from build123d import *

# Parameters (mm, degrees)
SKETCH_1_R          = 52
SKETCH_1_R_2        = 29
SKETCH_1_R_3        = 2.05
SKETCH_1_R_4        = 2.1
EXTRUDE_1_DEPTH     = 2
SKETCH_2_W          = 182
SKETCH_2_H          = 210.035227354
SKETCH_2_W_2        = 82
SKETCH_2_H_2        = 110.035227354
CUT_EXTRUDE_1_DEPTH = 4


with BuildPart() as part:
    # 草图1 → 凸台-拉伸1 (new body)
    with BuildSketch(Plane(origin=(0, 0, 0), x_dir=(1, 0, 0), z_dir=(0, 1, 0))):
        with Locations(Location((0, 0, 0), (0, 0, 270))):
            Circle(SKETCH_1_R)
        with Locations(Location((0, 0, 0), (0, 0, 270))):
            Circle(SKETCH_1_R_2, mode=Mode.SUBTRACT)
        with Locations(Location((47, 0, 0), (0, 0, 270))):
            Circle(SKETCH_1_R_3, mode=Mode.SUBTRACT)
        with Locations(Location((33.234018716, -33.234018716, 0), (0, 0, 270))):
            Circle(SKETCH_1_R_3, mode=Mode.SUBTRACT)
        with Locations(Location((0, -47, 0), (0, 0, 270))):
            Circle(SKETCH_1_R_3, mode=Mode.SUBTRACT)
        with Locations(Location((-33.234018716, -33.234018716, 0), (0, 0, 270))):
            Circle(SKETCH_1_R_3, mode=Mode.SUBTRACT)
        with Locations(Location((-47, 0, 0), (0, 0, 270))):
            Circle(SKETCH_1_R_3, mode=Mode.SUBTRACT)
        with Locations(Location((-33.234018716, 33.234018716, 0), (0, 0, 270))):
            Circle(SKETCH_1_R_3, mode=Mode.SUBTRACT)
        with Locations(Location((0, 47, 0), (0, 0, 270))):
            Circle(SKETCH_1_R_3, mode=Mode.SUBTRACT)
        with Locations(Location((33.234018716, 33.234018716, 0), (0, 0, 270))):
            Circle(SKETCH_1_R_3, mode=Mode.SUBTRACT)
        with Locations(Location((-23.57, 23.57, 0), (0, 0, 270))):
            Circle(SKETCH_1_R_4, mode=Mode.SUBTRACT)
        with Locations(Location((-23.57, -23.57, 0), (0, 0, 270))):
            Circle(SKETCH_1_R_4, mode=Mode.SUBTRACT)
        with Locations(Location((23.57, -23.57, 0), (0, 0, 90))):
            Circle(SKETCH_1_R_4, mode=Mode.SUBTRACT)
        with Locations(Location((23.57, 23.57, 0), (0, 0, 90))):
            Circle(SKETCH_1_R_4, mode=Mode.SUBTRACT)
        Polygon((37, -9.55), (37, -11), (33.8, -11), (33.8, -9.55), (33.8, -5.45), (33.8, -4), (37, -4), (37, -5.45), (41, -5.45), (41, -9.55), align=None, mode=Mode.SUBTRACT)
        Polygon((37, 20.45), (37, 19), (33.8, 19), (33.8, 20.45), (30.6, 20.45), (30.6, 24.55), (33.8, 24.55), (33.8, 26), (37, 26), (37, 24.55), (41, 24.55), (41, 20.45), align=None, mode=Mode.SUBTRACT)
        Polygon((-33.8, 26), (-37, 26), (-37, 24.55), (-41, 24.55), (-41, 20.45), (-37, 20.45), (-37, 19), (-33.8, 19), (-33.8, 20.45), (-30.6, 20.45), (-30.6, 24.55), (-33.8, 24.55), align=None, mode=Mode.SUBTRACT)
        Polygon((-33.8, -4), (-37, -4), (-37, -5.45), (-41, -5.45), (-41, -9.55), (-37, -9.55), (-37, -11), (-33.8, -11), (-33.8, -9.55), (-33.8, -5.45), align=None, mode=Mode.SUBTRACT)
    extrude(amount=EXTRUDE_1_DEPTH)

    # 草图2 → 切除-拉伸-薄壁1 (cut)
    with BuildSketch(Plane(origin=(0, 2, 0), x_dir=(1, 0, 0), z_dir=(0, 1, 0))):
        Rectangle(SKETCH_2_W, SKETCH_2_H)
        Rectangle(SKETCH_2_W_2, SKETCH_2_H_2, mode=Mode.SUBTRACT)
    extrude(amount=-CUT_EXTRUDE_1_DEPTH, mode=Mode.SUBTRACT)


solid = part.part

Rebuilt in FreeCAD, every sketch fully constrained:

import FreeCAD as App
import Part
import Sketcher

V = App.Vector
Q = App.Units.Quantity

doc = App.newDocument("Part")
body = doc.addObject("PartDesign::Body", "Body")

sketch1 = body.newObject("Sketcher::SketchObject", "Sketch")
sketch1.AttachmentSupport = (doc.getObject("XZ_Plane"), [""])
sketch1.MapMode = "FlatFace"
sketch1.addGeometry([
    Part.Circle(V(0, 0, 0), V(0, 0, 1), 52),
    Part.Circle(V(-33.2, -33.2, 0), V(0, 0, 1), 2),
    Part.LineSegment(V(-37, -26, 0), V(-33.8, -26, 0)),
    Part.LineSegment(V(-33.8, -26, 0), V(-33.8, -24.6, 0)),
    Part.LineSegment(V(-33.8, -24.6, 0), V(-30.6, -24.6, 0)),
    Part.LineSegment(V(-30.6, -24.6, 0), V(-30.6, -20.4, 0)),
    Part.LineSegment(V(-30.6, -20.4, 0), V(-33.8, -20.4, 0)),
    Part.LineSegment(V(-33.8, -20.4, 0), V(-33.8, -19, 0)),
    Part.LineSegment(V(-33.8, -19, 0), V(-37, -19, 0)),
    Part.LineSegment(V(-37, -19, 0), V(-37, -20.4, 0)),
    Part.LineSegment(V(-37, -20.4, 0), V(-41, -20.4, 0)),
    Part.LineSegment(V(-41, -20.4, 0), V(-41, -24.6, 0)),
    Part.LineSegment(V(-41, -24.6, 0), V(-37, -24.6, 0)),
    Part.LineSegment(V(-37, -24.6, 0), V(-37, -26, 0)),
    Part.Circle(V(0, -47, 0), V(0, 0, 1), 2),
    Part.Circle(V(-23.6, -23.6, 0), V(0, 0, 1), 2.1),
    Part.Circle(V(-47, 0, 0), V(0, 0, 1), 2),
    Part.LineSegment(V(-37, 4, 0), V(-33.8, 4, 0)),
    Part.LineSegment(V(-33.8, 4, 0), V(-33.8, 11, 0)),
    Part.LineSegment(V(-33.8, 11, 0), V(-37, 11, 0)),
    Part.LineSegment(V(-37, 11, 0), V(-37, 9.6, 0)),
    Part.LineSegment(V(-37, 9.6, 0), V(-41, 9.6, 0)),
    Part.LineSegment(V(-41, 9.6, 0), V(-41, 5.5, 0)),
    Part.LineSegment(V(-41, 5.5, 0), V(-37, 5.5, 0)),
    Part.LineSegment(V(-37, 5.5, 0), V(-37, 4, 0)),
    Part.Circle(V(-33.2, 33.2, 0), V(0, 0, 1), 2),
    Part.Circle(V(-23.6, 23.6, 0), V(0, 0, 1), 2.1),
    Part.Circle(V(23.6, -23.6, 0), V(0, 0, 1), 2.1),
    Part.Circle(V(33.2, -33.2, 0), V(0, 0, 1), 2),
    Part.LineSegment(V(41, -20.4, 0), V(37, -20.4, 0)),
    Part.LineSegment(V(37, -20.4, 0), V(37, -19, 0)),
    Part.LineSegment(V(37, -19, 0), V(33.8, -19, 0)),
    Part.LineSegment(V(33.8, -19, 0), V(33.8, -20.4, 0)),
    Part.LineSegment(V(33.8, -20.4, 0), V(30.6, -20.4, 0)),
    Part.LineSegment(V(30.6, -20.4, 0), V(30.6, -24.6, 0)),
    Part.LineSegment(V(30.6, -24.6, 0), V(33.8, -24.6, 0)),
    Part.LineSegment(V(33.8, -24.6, 0), V(33.8, -26, 0)),
    Part.LineSegment(V(33.8, -26, 0), V(37, -26, 0)),
    Part.LineSegment(V(37, -26, 0), V(37, -24.6, 0)),
    Part.LineSegment(V(37, -24.6, 0), V(41, -24.6, 0)),
    Part.LineSegment(V(41, -24.6, 0), V(41, -20.4, 0)),
    Part.Circle(V(47, 0, 0), V(0, 0, 1), 2),
    Part.Circle(V(0, 0, 0), V(0, 0, 1), 29),
    Part.Circle(V(23.6, 23.6, 0), V(0, 0, 1), 2.1),
    Part.Circle(V(0, 47, 0), V(0, 0, 1), 2),
    Part.LineSegment(V(41, 9.6, 0), V(37, 9.6, 0)),
    Part.LineSegment(V(37, 9.6, 0), V(37, 11, 0)),
    Part.LineSegment(V(37, 11, 0), V(33.8, 11, 0)),
    Part.LineSegment(V(33.8, 11, 0), V(33.8, 4, 0)),
    Part.LineSegment(V(33.8, 4, 0), V(37, 4, 0)),
    Part.LineSegment(V(37, 4, 0), V(37, 5.5, 0)),
    Part.LineSegment(V(37, 5.5, 0), V(41, 5.5, 0)),
    Part.LineSegment(V(41, 5.5, 0), V(41, 9.6, 0)),
    Part.Circle(V(33.2, 33.2, 0), V(0, 0, 1), 2),
], False)
sketch1.addConstraint([
    Sketcher.Constraint("Coincident", 2, 2, 3, 1),
    Sketcher.Constraint("Coincident", 3, 2, 4, 1),
    Sketcher.Constraint("Coincident", 4, 2, 5, 1),
    Sketcher.Constraint("Coincident", 5, 2, 6, 1),
    Sketcher.Constraint("Coincident", 6, 2, 7, 1),
    Sketcher.Constraint("Coincident", 7, 2, 8, 1),
    Sketcher.Constraint("Coincident", 8, 2, 9, 1),
    Sketcher.Constraint("Coincident", 9, 2, 10, 1),
    Sketcher.Constraint("Coincident", 10, 2, 11, 1),
    Sketcher.Constraint("Coincident", 11, 2, 12, 1),
    Sketcher.Constraint("Coincident", 12, 2, 13, 1),
    Sketcher.Constraint("Coincident", 13, 2, 2, 1),
    Sketcher.Constraint("Coincident", 17, 2, 18, 1),
    Sketcher.Constraint("Coincident", 18, 2, 19, 1),
    Sketcher.Constraint("Coincident", 19, 2, 20, 1),
    Sketcher.Constraint("Coincident", 20, 2, 21, 1),
    Sketcher.Constraint("Coincident", 21, 2, 22, 1),
    Sketcher.Constraint("Coincident", 22, 2, 23, 1),
    Sketcher.Constraint("Coincident", 23, 2, 24, 1),
    Sketcher.Constraint("Coincident", 24, 2, 17, 1),
    Sketcher.Constraint("Coincident", 29, 2, 30, 1),
    Sketcher.Constraint("Coincident", 30, 2, 31, 1),
    Sketcher.Constraint("Coincident", 31, 2, 32, 1),
    Sketcher.Constraint("Coincident", 32, 2, 33, 1),
    Sketcher.Constraint("Coincident", 33, 2, 34, 1),
    Sketcher.Constraint("Coincident", 34, 2, 35, 1),
    Sketcher.Constraint("Coincident", 35, 2, 36, 1),
    Sketcher.Constraint("Coincident", 36, 2, 37, 1),
    Sketcher.Constraint("Coincident", 37, 2, 38, 1),
    Sketcher.Constraint("Coincident", 38, 2, 39, 1),
    Sketcher.Constraint("Coincident", 39, 2, 40, 1),
    Sketcher.Constraint("Coincident", 40, 2, 29, 1),
    Sketcher.Constraint("Coincident", 45, 2, 46, 1),
    Sketcher.Constraint("Coincident", 46, 2, 47, 1),
    Sketcher.Constraint("Coincident", 47, 2, 48, 1),
    Sketcher.Constraint("Coincident", 48, 2, 49, 1),
    Sketcher.Constraint("Coincident", 49, 2, 50, 1),
    Sketcher.Constraint("Coincident", 50, 2, 51, 1),
    Sketcher.Constraint("Coincident", 51, 2, 52, 1),
    Sketcher.Constraint("Coincident", 52, 2, 45, 1),
    Sketcher.Constraint("Horizontal", 2),
    Sketcher.Constraint("Vertical", 3),
    Sketcher.Constraint("Horizontal", 4),
    Sketcher.Constraint("Vertical", 5),
    Sketcher.Constraint("Horizontal", 6),
    Sketcher.Constraint("Vertical", 7),
    Sketcher.Constraint("Horizontal", 8),
    Sketcher.Constraint("Vertical", 9),
    Sketcher.Constraint("Horizontal", 10),
    Sketcher.Constraint("Vertical", 11),
    Sketcher.Constraint("Horizontal", 12),
    Sketcher.Constraint("Vertical", 13),
    Sketcher.Constraint("Horizontal", 17),
    Sketcher.Constraint("Vertical", 18),
    Sketcher.Constraint("Horizontal", 19),
    Sketcher.Constraint("Vertical", 20),
    Sketcher.Constraint("Horizontal", 21),
    Sketcher.Constraint("Vertical", 22),
    Sketcher.Constraint("Horizontal", 23),
    Sketcher.Constraint("Vertical", 24),
    Sketcher.Constraint("Horizontal", 29),
    Sketcher.Constraint("Vertical", 30),
    Sketcher.Constraint("Horizontal", 31),
    Sketcher.Constraint("Vertical", 32),
    Sketcher.Constraint("Horizontal", 33),
    Sketcher.Constraint("Vertical", 34),
    Sketcher.Constraint("Horizontal", 35),
    Sketcher.Constraint("Vertical", 36),
    Sketcher.Constraint("Horizontal", 37),
    Sketcher.Constraint("Vertical", 38),
    Sketcher.Constraint("Horizontal", 39),
    Sketcher.Constraint("Vertical", 40),
    Sketcher.Constraint("Horizontal", 45),
    Sketcher.Constraint("Vertical", 46),
    Sketcher.Constraint("Horizontal", 47),
    Sketcher.Constraint("Vertical", 48),
    Sketcher.Constraint("Horizontal", 49),
    Sketcher.Constraint("Vertical", 50),
    Sketcher.Constraint("Horizontal", 51),
    Sketcher.Constraint("Vertical", 52),
    Sketcher.Constraint("Coincident", 0, 3, -1, 1),
    Sketcher.Constraint("Coincident", 42, 3, -1, 1),
    Sketcher.Constraint("Equal", 1, 14),
    Sketcher.Constraint("Equal", 14, 16),
    Sketcher.Constraint("Equal", 16, 25),
    Sketcher.Constraint("Equal", 15, 26),
    Sketcher.Constraint("Equal", 26, 27),
    Sketcher.Constraint("Equal", 25, 28),
    Sketcher.Constraint("Equal", 28, 41),
    Sketcher.Constraint("Equal", 27, 43),
    Sketcher.Constraint("Equal", 41, 44),
    Sketcher.Constraint("Equal", 44, 53),
    Sketcher.Constraint("Symmetric", 26, 3, 27, 3, -1, 1),
    Sketcher.Constraint("Symmetric", 25, 3, 28, 3, -1, 1),
    Sketcher.Constraint("Symmetric", 16, 3, 41, 3, -1, 1),
    Sketcher.Constraint("Symmetric", 15, 3, 43, 3, -1, 1),
    Sketcher.Constraint("Symmetric", 14, 3, 44, 3, -1, 1),
    Sketcher.Constraint("Symmetric", 1, 3, 53, 3, -1, 1),
    Sketcher.Constraint("Symmetric", 15, 3, 27, 3, -2),
    Sketcher.Constraint("Symmetric", 1, 3, 28, 3, -2),
    Sketcher.Constraint("Symmetric", 9, 2, 29, 2, -2),
    Sketcher.Constraint("Symmetric", 7, 2, 31, 2, -2),
    Sketcher.Constraint("Symmetric", 5, 2, 33, 2, -2),
    Sketcher.Constraint("Symmetric", 3, 2, 35, 2, -2),
    Sketcher.Constraint("Symmetric", 13, 2, 37, 2, -2),
    Sketcher.Constraint("Symmetric", 11, 2, 39, 2, -2),
    Sketcher.Constraint("Symmetric", 20, 2, 45, 2, -2),
    Sketcher.Constraint("Symmetric", 18, 2, 47, 2, -2),
    Sketcher.Constraint("Symmetric", 24, 2, 49, 2, -2),
    Sketcher.Constraint("Symmetric", 22, 2, 51, 2, -2),
    Sketcher.Constraint("PointOnObject", 14, 3, -2),
    Sketcher.Constraint("PointOnObject", 16, 3, -1),
    Sketcher.Constraint("Horizontal", 6, 2, 9, 2),
    Sketcher.Constraint("Horizontal", 4, 2, 11, 2),
    Sketcher.Constraint("Vertical", 3, 2, 6, 2),
    Sketcher.Constraint("Vertical", 9, 2, 12, 2),
    Sketcher.Constraint("Vertical", 7, 2, 17, 2),
    Sketcher.Constraint("Vertical", 13, 2, 19, 2),
    Sketcher.Constraint("Vertical", 11, 2, 21, 2),
    Sketcher.Constraint("Vertical", 20, 2, 23, 2),
    Sketcher.Constraint("Equal", 2, 4),
    Sketcher.Constraint("Equal", 3, 7),
    Sketcher.Constraint("Equal", 13, 20),
    Sketcher.Constraint("Equal", 11, 22),
    Sketcher.Constraint("Equal", 20, 24),
    Sketcher.Constraint("Diameter", 0, Q("104 mm")),
    Sketcher.Constraint("Diameter", 42, Q("58 mm")),
    Sketcher.Constraint("Diameter", 1, Q("4.1 mm")),
    Sketcher.Constraint("Diameter", 15, Q("4.2 mm")),
    Sketcher.Constraint("DistanceX", 10, 2, 10, 1, Q("4 mm")),
    Sketcher.Constraint("DistanceY", 18, 1, 18, 2, Q("7 mm")),
    Sketcher.Constraint("DistanceX", 2, 1, 2, 2, Q("3.2 mm")),
    Sketcher.Constraint("DistanceY", 5, 1, 5, 2, Q("4.1 mm")),
    Sketcher.Constraint("DistanceY", 14, 3, -1, 1, Q("47 mm")),
    Sketcher.Constraint("DistanceX", 16, 3, -1, 1, Q("47 mm")),
    Sketcher.Constraint("DistanceY", 2, 2, -1, 1, Q("26 mm")),
    Sketcher.Constraint("DistanceX", 8, 2, -1, 1, Q("37 mm")),
    Sketcher.Constraint("DistanceY", -1, 1, 17, 2, Q("4 mm")),
    Sketcher.Constraint("DistanceX", 15, 3, -1, 1, Q("23.57 mm")),
    Sketcher.Constraint("DistanceY", 15, 3, -1, 1, Q("23.57 mm")),
    Sketcher.Constraint("DistanceX", 1, 3, -1, 1, Q("33.234019 mm")),
    Sketcher.Constraint("DistanceY", 1, 3, -1, 1, Q("33.234019 mm")),
])
pad1 = body.newObject("PartDesign::Pad", "Pad")
pad1.Profile = sketch1
pad1.Length = 2
pad1.Reversed = True

sketch2 = body.newObject("Sketcher::SketchObject", "Sketch001")
sketch2.AttachmentSupport = (doc.getObject("XZ_Plane"), [""])
sketch2.MapMode = "FlatFace"
sketch2.AttachmentOffset = App.Placement(V(0, 0, -2), App.Rotation())
sketch2.addGeometry([
    Part.LineSegment(V(-91, -105, 0), V(-91, 105, 0)),
    Part.LineSegment(V(-91, 105, 0), V(91, 105, 0)),
    Part.LineSegment(V(91, 105, 0), V(91, -105, 0)),
    Part.LineSegment(V(91, -105, 0), V(-91, -105, 0)),
    Part.LineSegment(V(41, 55, 0), V(-41, 55, 0)),
    Part.LineSegment(V(-41, 55, 0), V(-41, -55, 0)),
    Part.LineSegment(V(-41, -55, 0), V(41, -55, 0)),
    Part.LineSegment(V(41, -55, 0), V(41, 55, 0)),
], False)
sketch2.addConstraint([
    Sketcher.Constraint("Coincident", 0, 2, 1, 1),
    Sketcher.Constraint("Coincident", 1, 2, 2, 1),
    Sketcher.Constraint("Coincident", 2, 2, 3, 1),
    Sketcher.Constraint("Coincident", 3, 2, 0, 1),
    Sketcher.Constraint("Coincident", 4, 2, 5, 1),
    Sketcher.Constraint("Coincident", 5, 2, 6, 1),
    Sketcher.Constraint("Coincident", 6, 2, 7, 1),
    Sketcher.Constraint("Coincident", 7, 2, 4, 1),
    Sketcher.Constraint("Vertical", 0),
    Sketcher.Constraint("Horizontal", 1),
    Sketcher.Constraint("Vertical", 2),
    Sketcher.Constraint("Horizontal", 3),
    Sketcher.Constraint("Horizontal", 4),
    Sketcher.Constraint("Vertical", 5),
    Sketcher.Constraint("Horizontal", 6),
    Sketcher.Constraint("Vertical", 7),
    Sketcher.Constraint("Symmetric", 0, 2, 2, 2, -1, 1),
    Sketcher.Constraint("Symmetric", 4, 2, 6, 2, -1, 1),
    Sketcher.Constraint("DistanceX", 1, 1, 1, 2, Q("182 mm")),
    Sketcher.Constraint("DistanceX", 4, 2, 4, 1, Q("82 mm")),
    Sketcher.Constraint("DistanceY", 4, 2, 0, 2, Q("50 mm")),
    Sketcher.Constraint("DistanceY", 0, 1, 0, 2, Q("210.035227 mm")),
])
pocket1 = body.newObject("PartDesign::Pocket", "Pocket")
pocket1.Profile = sketch2
pocket1.Length = 4
pocket1.Reversed = True

doc.recompute()
